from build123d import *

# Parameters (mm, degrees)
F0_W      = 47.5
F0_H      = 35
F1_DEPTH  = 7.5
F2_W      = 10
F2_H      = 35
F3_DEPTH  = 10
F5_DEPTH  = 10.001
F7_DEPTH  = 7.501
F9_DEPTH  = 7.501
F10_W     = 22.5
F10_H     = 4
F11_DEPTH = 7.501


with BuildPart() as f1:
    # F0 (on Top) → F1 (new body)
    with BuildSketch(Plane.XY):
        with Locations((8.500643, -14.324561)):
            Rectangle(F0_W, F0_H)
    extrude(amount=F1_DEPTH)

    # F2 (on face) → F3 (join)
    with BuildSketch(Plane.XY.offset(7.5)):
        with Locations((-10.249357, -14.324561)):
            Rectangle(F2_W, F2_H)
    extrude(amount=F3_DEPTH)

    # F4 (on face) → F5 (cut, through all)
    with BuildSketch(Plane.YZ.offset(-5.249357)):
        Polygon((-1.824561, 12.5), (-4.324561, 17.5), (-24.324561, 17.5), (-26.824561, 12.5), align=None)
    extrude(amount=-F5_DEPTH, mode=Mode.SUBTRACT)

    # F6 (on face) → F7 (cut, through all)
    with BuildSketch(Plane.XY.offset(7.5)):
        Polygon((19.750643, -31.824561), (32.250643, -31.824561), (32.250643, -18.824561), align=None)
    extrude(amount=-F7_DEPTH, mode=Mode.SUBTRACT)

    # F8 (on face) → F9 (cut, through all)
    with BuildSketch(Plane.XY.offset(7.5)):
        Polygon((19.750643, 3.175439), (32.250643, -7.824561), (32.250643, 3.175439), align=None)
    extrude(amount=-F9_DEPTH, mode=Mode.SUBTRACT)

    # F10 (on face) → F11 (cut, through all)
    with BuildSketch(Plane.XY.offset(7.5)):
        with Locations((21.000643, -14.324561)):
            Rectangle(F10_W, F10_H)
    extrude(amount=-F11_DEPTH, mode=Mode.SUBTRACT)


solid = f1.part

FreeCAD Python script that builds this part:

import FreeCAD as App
import Part
import Sketcher

V = App.Vector


def add_polygon(sketch, points):
    """Adds a closed chain of lines whose ends are joined by coincident constraints."""
    first, n = sketch.GeometryCount, len(points)
    for a, b in zip(points, points[1:] + points[:1]):
        sketch.addGeometry(Part.LineSegment(App.Vector(*a, 0), App.Vector(*b, 0)), False)
    for i in range(n):
        sketch.addConstraint(Sketcher.Constraint("Coincident", first + i, 2, first + (i + 1) % n, 1))

doc = App.newDocument("Part")
body = doc.addObject("PartDesign::Body", "Body")

# Sketch on XY plane
sketch1 = body.newObject("Sketcher::SketchObject", "Sketch")
sketch1.AttachmentSupport = (doc.getObject("XY_Plane"), [""])
sketch1.MapMode = "FlatFace"
add_polygon(sketch1, [(-15.249357, 3.175439), (-15.249357, -31.824561), (32.250643, -31.824561), (32.250643, 3.175439)])  # lines 0-3
sketch1.addConstraint([
    Sketcher.Constraint("Vertical", 0),
    Sketcher.Constraint("Horizontal", 1),
    Sketcher.Constraint("Vertical", 2),
    Sketcher.Constraint("Horizontal", 3),
    Sketcher.Constraint("DistanceY", 0, 2, 0, 1, 35.0),
    Sketcher.Constraint("DistanceX", 1, 1, 1, 2, 47.5),
    Sketcher.Constraint("DistanceY", 0, 2, -1, 1, 31.824561),
    Sketcher.Constraint("DistanceX", 0, 2, -1, 1, 15.249357),
])
pad1 = body.newObject("PartDesign::Pad", "Pad")
pad1.Profile = sketch1
pad1.Length = 7.5

# Sketch on XY plane
sketch2 = body.newObject("Sketcher::SketchObject", "Sketch001")
sketch2.AttachmentSupport = (doc.getObject("XY_Plane"), [""])
sketch2.MapMode = "FlatFace"
sketch2.AttachmentOffset = App.Placement(V(0, 0, 7.5), App.Rotation())
add_polygon(sketch2, [(-15.249357, 3.175439), (-15.249357, -31.824561), (-5.249357, -31.824561), (-5.249357, 3.175439)])  # lines 0-3
sketch2.addConstraint([
    Sketcher.Constraint("Vertical", 0),
    Sketcher.Constraint("Horizontal", 1),
    Sketcher.Constraint("Vertical", 2),
    Sketcher.Constraint("Horizontal", 3),
    Sketcher.Constraint("DistanceX", 1, 1, 1, 2, 10.0),
    Sketcher.Constraint("DistanceY", 0, 2, 0, 1, 35.0),
    Sketcher.Constraint("DistanceY", 0, 2, -1, 1, 31.824561),
    Sketcher.Constraint("DistanceX", 0, 2, -1, 1, 15.249357),
])
pad2 = body.newObject("PartDesign::Pad", "Pad001")
pad2.Profile = sketch2
pad2.Length = 10

# Sketch on YZ plane
sketch3 = body.newObject("Sketcher::SketchObject", "Sketch002")
sketch3.AttachmentSupport = (doc.getObject("YZ_Plane"), [""])
sketch3.MapMode = "FlatFace"
sketch3.AttachmentOffset = App.Placement(V(0, 0, -5.249357), App.Rotation())
add_polygon(sketch3, [(-1.824561, 12.5), (-4.324561, 17.5), (-24.324561, 17.5), (-26.824561, 12.5)])  # lines 0-3
sketch3.addConstraint([
    Sketcher.Constraint("Horizontal", 1),
    Sketcher.Constraint("Horizontal", 3),
    Sketcher.Constraint("Equal", 0, 2),
    Sketcher.Constraint("DistanceX", 1, 2, 1, 1, 20.0),
    Sketcher.Constraint("DistanceX", 3, 1, 3, 2, 25.0),
    Sketcher.Constraint("DistanceY", 2, 2, 1, 2, 5.0),
    Sketcher.Constraint("DistanceY", -1, 1, 0, 2, 17.5),
    Sketcher.Constraint("DistanceX", 0, 2, -1, 1, 4.324561),
])
pocket1 = body.newObject("PartDesign::Pocket", "Pocket")
pocket1.Profile = sketch3
pocket1.Type = "ThroughAll"

# Sketch on XY plane
sketch4 = body.newObject("Sketcher::SketchObject", "Sketch003")
sketch4.AttachmentSupport = (doc.getObject("XY_Plane"), [""])
sketch4.MapMode = "FlatFace"
sketch4.AttachmentOffset = App.Placement(V(0, 0, 7.5), App.Rotation())
add_polygon(sketch4, [(19.750643, -31.824561), (32.250643, -31.824561), (32.250643, -18.824561)])  # lines 0-2
sketch4.addConstraint([
    Sketcher.Constraint("Horizontal", 0),
    Sketcher.Constraint("Vertical", 1),
    Sketcher.Constraint("DistanceY", 1, 1, 1, 2, 13.0),
    Sketcher.Constraint("DistanceX", 0, 1, 0, 2, 12.5),
    Sketcher.Constraint("DistanceY", 0, 2, -1, 1, 31.824561),
    Sketcher.Constraint("DistanceX", -1, 1, 0, 2, 32.250643),
])
pocket2 = body.newObject("PartDesign::Pocket", "Pocket001")
pocket2.Profile = sketch4
pocket2.Type = "ThroughAll"

# Sketch on XY plane
sketch5 = body.newObject("Sketcher::SketchObject", "Sketch004")
sketch5.AttachmentSupport = (doc.getObject("XY_Plane"), [""])
sketch5.MapMode = "FlatFace"
sketch5.AttachmentOffset = App.Placement(V(0, 0, 7.5), App.Rotation())
add_polygon(sketch5, [(19.750643, 3.175439), (32.250643, -7.824561), (32.250643, 3.175439)])  # lines 0-2
sketch5.addConstraint([
    Sketcher.Constraint("Vertical", 1),
    Sketcher.Constraint("Horizontal", 2),
    Sketcher.Constraint("DistanceY", 1, 1, 1, 2, 11.0),
    Sketcher.Constraint("DistanceX", 2, 2, 2, 1, 12.5),
    Sketcher.Constraint("DistanceY", 0, 2, -1, 1, 7.824561),
    Sketcher.Constraint("DistanceX", -1, 1, 0, 2, 32.250643),
])
pocket3 = body.newObject("PartDesign::Pocket", "Pocket002")
pocket3.Profile = sketch5
pocket3.Type = "ThroughAll"

# Sketch on XY plane
sketch6 = body.newObject("Sketcher::SketchObject", "Sketch005")
sketch6.AttachmentSupport = (doc.getObject("XY_Plane"), [""])
sketch6.MapMode = "FlatFace"
sketch6.AttachmentOffset = App.Placement(V(0, 0, 7.5), App.Rotation())
add_polygon(sketch6, [(9.750643, -12.324561), (9.750643, -16.324561), (32.250643, -16.324561), (32.250643, -12.324561)])  # lines 0-3
sketch6.addConstraint([
    Sketcher.Constraint("Vertical", 0),
    Sketcher.Constraint("Horizontal", 1),
    Sketcher.Constraint("Vertical", 2),
    Sketcher.Constraint("Horizontal", 3),
    Sketcher.Constraint("DistanceY", 0, 2, 0, 1, 4.0),
    Sketcher.Constraint("DistanceX", 1, 1, 1, 2, 22.5),
    Sketcher.Constraint("DistanceY", 0, 2, -1, 1, 16.324561),
    Sketcher.Constraint("DistanceX", -1, 1, 0, 2, 9.750643),
])
pocket4 = body.newObject("PartDesign::Pocket", "Pocket003")
pocket4.Profile = sketch6
pocket4.Type = "ThroughAll"

doc.recompute()
